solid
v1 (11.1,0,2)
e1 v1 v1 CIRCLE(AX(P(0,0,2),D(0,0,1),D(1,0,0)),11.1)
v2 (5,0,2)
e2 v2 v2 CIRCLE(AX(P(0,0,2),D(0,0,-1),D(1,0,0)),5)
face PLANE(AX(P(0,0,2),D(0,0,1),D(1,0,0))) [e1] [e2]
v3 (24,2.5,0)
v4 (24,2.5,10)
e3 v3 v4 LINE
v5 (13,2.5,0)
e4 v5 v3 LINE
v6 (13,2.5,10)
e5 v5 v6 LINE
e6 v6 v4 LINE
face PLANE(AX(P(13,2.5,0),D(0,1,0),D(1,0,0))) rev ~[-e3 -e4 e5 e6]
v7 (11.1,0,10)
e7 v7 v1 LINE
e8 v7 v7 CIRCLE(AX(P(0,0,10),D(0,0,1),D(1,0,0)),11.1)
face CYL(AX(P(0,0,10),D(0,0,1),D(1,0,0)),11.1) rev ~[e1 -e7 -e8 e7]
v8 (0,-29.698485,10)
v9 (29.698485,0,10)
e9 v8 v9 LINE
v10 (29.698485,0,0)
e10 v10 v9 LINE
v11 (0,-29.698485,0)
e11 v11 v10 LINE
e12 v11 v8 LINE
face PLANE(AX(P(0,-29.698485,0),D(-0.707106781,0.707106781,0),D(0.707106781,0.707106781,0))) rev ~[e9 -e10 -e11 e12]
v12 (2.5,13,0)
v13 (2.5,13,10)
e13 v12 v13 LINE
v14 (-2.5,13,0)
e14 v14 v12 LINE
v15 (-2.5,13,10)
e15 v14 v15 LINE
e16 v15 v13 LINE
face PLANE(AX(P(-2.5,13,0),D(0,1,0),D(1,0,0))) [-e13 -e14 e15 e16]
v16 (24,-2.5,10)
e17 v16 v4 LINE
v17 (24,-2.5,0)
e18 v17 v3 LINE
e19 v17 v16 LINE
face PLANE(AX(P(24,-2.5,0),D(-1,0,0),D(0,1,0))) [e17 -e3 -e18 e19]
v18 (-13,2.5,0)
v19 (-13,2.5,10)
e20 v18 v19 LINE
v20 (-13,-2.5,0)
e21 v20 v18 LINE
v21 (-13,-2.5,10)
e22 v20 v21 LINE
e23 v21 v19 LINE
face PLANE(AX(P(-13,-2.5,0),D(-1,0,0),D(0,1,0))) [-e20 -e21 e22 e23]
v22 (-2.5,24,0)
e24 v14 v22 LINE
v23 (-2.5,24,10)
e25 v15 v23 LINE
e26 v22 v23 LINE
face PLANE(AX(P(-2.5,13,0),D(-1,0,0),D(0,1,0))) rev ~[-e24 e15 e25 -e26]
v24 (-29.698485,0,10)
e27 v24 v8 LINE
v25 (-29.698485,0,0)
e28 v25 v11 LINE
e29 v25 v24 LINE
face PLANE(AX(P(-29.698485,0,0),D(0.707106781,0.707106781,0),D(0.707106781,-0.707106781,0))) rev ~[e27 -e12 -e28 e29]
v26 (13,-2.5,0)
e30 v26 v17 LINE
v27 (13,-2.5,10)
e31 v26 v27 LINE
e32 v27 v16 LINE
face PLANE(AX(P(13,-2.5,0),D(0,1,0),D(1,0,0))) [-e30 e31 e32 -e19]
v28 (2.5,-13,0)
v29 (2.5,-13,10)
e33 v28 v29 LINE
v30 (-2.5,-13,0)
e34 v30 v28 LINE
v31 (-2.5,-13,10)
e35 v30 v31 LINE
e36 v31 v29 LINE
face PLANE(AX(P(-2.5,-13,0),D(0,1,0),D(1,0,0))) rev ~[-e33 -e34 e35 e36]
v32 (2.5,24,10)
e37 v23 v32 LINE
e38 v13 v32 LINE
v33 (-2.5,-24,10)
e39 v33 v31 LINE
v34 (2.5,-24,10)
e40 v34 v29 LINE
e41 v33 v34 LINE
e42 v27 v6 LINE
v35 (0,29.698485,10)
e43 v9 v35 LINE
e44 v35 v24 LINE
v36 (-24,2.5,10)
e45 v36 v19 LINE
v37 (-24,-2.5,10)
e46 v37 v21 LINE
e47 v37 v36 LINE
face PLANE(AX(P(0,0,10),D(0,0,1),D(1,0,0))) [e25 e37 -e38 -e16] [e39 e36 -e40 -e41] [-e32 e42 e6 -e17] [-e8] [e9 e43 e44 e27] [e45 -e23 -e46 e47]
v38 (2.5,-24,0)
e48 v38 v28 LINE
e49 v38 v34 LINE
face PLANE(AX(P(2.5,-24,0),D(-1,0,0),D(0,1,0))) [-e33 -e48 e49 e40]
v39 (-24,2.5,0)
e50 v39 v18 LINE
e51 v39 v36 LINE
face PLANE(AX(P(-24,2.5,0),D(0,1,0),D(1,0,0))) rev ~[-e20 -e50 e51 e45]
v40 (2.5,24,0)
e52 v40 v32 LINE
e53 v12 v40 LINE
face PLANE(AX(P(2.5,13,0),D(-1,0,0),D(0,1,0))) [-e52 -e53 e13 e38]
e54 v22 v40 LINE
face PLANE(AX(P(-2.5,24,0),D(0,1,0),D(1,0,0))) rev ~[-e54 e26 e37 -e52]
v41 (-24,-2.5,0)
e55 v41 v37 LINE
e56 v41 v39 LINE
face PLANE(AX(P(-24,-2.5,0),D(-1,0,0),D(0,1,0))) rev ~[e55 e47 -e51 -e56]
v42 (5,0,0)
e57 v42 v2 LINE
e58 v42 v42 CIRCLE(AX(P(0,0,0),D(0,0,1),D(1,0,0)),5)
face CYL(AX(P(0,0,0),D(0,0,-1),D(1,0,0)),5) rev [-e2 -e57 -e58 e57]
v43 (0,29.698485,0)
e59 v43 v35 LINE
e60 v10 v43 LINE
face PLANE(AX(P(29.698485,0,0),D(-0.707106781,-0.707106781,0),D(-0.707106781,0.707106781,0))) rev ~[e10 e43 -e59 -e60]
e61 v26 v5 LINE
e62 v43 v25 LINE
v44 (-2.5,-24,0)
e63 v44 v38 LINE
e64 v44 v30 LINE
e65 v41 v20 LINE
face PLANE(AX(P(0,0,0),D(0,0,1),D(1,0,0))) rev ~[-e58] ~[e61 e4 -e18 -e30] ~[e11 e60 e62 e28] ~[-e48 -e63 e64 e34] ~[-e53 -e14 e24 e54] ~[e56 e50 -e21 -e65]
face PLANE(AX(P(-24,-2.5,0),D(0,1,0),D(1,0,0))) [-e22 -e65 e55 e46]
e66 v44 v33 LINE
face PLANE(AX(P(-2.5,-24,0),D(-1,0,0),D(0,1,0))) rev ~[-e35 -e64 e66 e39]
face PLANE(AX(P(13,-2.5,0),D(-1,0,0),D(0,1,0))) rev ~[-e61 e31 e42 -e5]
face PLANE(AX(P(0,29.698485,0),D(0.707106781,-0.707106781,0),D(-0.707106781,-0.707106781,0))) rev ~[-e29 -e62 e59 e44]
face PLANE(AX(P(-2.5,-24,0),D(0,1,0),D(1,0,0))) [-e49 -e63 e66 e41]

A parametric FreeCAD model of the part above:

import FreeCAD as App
import Part
import Sketcher

doc = App.newDocument("Part")
body = doc.addObject("PartDesign::Body", "Body")

# Sketch on XY plane
sketch1 = doc.addObject("Sketcher::SketchObject", "Sketch")
body.addObject(sketch1)
sketch1.AttachmentSupport = (doc.XY_Plane, [""])
sketch1.MapMode = "FlatFace"
sketch1.addGeometry(Part.LineSegment(App.Vector(29.698485, 0, 0), App.Vector(0, 29.698485, 0)), False)
sketch1.addGeometry(Part.LineSegment(App.Vector(0, 29.698485, 0), App.Vector(-29.698485, 0, 0)), False)
sketch1.addGeometry(Part.LineSegment(App.Vector(-29.698485, 0, 0), App.Vector(0, -29.698485, 0)), False)
sketch1.addGeometry(Part.LineSegment(App.Vector(0, -29.698485, 0), App.Vector(29.698485, 0, 0)), False)
sketch1.addGeometry(Part.LineSegment(App.Vector(2.5, -24, 0), App.Vector(-2.5, -24, 0)), False)
sketch1.addGeometry(Part.LineSegment(App.Vector(-2.5, -24, 0), App.Vector(-2.5, -13, 0)), False)
sketch1.addGeometry(Part.LineSegment(App.Vector(-2.5, -13, 0), App.Vector(2.5, -13, 0)), False)
sketch1.addGeometry(Part.LineSegment(App.Vector(2.5, -13, 0), App.Vector(2.5, -24, 0)), False)
sketch1.addGeometry(Part.LineSegment(App.Vector(-13, -2.5, 0), App.Vector(-24, -2.5, 0)), False)
sketch1.addGeometry(Part.LineSegment(App.Vector(-24, -2.5, 0), App.Vector(-24, 2.5, 0)), False)
sketch1.addGeometry(Part.LineSegment(App.Vector(-24, 2.5, 0), App.Vector(-13, 2.5, 0)), False)
sketch1.addGeometry(Part.LineSegment(App.Vector(-13, 2.5, 0), App.Vector(-13, -2.5, 0)), False)
sketch1.addGeometry(Part.Circle(App.Vector(0, 0, 0), App.Vector(0, 0, 1), 5), False)
sketch1.addGeometry(Part.LineSegment(App.Vector(24, -2.5, 0), App.Vector(13, -2.5, 0)), False)
sketch1.addGeometry(Part.LineSegment(App.Vector(13, -2.5, 0), App.Vector(13, 2.5, 0)), False)
sketch1.addGeometry(Part.LineSegment(App.Vector(13, 2.5, 0), App.Vector(24, 2.5, 0)), False)
sketch1.addGeometry(Part.LineSegment(App.Vector(24, 2.5, 0), App.Vector(24, -2.5, 0)), False)
sketch1.addGeometry(Part.LineSegment(App.Vector(2.5, 13, 0), App.Vector(-2.5, 13, 0)), False)
sketch1.addGeometry(Part.LineSegment(App.Vector(-2.5, 13, 0), App.Vector(-2.5, 24, 0)), False)
sketch1.addGeometry(Part.LineSegment(App.Vector(-2.5, 24, 0), App.Vector(2.5, 24, 0)), False)
sketch1.addGeometry(Part.LineSegment(App.Vector(2.5, 24, 0), App.Vector(2.5, 13, 0)), False)
sketch1.addConstraint(Sketcher.Constraint("Coincident", 0, 2, 1, 1))
sketch1.addConstraint(Sketcher.Constraint("Coincident", 1, 2, 2, 1))
sketch1.addConstraint(Sketcher.Constraint("Coincident", 2, 2, 3, 1))
sketch1.addConstraint(Sketcher.Constraint("Coincident", 3, 2, 0, 1))
sketch1.addConstraint(Sketcher.Constraint("Coincident", 4, 2, 5, 1))
sketch1.addConstraint(Sketcher.Constraint("Coincident", 5, 2, 6, 1))
sketch1.addConstraint(Sketcher.Constraint("Coincident", 6, 2, 7, 1))
sketch1.addConstraint(Sketcher.Constraint("Coincident", 7, 2, 4, 1))
sketch1.addConstraint(Sketcher.Constraint("Coincident", 8, 2, 9, 1))
sketch1.addConstraint(Sketcher.Constraint("Coincident", 9, 2, 10, 1))
sketch1.addConstraint(Sketcher.Constraint("Coincident", 10, 2, 11, 1))
sketch1.addConstraint(Sketcher.Constraint("Coincident", 11, 2, 8, 1))
sketch1.addConstraint(Sketcher.Constraint("Coincident", 13, 2, 14, 1))
sketch1.addConstraint(Sketcher.Constraint("Coincident", 14, 2, 15, 1))
sketch1.addConstraint(Sketcher.Constraint("Coincident", 15, 2, 16, 1))
sketch1.addConstraint(Sketcher.Constraint("Coincident", 16, 2, 13, 1))
sketch1.addConstraint(Sketcher.Constraint("Coincident", 17, 2, 18, 1))
sketch1.addConstraint(Sketcher.Constraint("Coincident", 18, 2, 19, 1))
sketch1.addConstraint(Sketcher.Constraint("Coincident", 19, 2, 20, 1))
sketch1.addConstraint(Sketcher.Constraint("Coincident", 20, 2, 17, 1))
sketch1.addConstraint(Sketcher.Constraint("Horizontal", 4))
sketch1.addConstraint(Sketcher.Constraint("Vertical", 5))
sketch1.addConstraint(Sketcher.Constraint("Horizontal", 6))
sketch1.addConstraint(Sketcher.Constraint("Vertical", 7))
sketch1.addConstraint(Sketcher.Constraint("Horizontal", 8))
sketch1.addConstraint(Sketcher.Constraint("Vertical", 9))
sketch1.addConstraint(Sketcher.Constraint("Horizontal", 10))
sketch1.addConstraint(Sketcher.Constraint("Vertical", 11))
sketch1.addConstraint(Sketcher.Constraint("Horizontal", 13))
sketch1.addConstraint(Sketcher.Constraint("Vertical", 14))
sketch1.addConstraint(Sketcher.Constraint("Horizontal", 15))
sketch1.addConstraint(Sketcher.Constraint("Vertical", 16))
sketch1.addConstraint(Sketcher.Constraint("Horizontal", 17))
sketch1.addConstraint(Sketcher.Constraint("Vertical", 18))
sketch1.addConstraint(Sketcher.Constraint("Horizontal", 19))
sketch1.addConstraint(Sketcher.Constraint("Vertical", 20))
sketch1.addConstraint(Sketcher.Constraint("Coincident", 12, 3, -1, 1))
sketch1.addConstraint(Sketcher.Constraint("Symmetric", 0, 2, 2, 2, -1, 1))
sketch1.addConstraint(Sketcher.Constraint("Symmetric", 1, 2, 3, 2, -1, 1))
sketch1.addConstraint(Sketcher.Constraint("Symmetric", 10, 2, 13, 2, -1, 1))
sketch1.addConstraint(Sketcher.Constraint("Symmetric", 8, 2, 15, 2, -1, 1))
sketch1.addConstraint(Sketcher.Constraint("Symmetric", 6, 2, 17, 2, -1, 1))
sketch1.addConstraint(Sketcher.Constraint("Symmetric", 4, 2, 19, 2, -1, 1))
sketch1.addConstraint(Sketcher.Constraint("PointOnObject", 0, 2, -2))
sketch1.addConstraint(Sketcher.Constraint("PointOnObject", 1, 2, -1))
sketch1.addConstraint(Sketcher.Constraint("Perpendicular", 0, 1))
sketch1.addConstraint(Sketcher.Constraint("Horizontal", 11, 2, 13, 2))
sketch1.addConstraint(Sketcher.Constraint("Vertical", 5, 2, 17, 2))
sketch1.addConstraint(Sketcher.Constraint("Equal", 15, 5))
sketch1.addConstraint(Sketcher.Constraint("Equal", 19, 9))
sketch1.addConstraint(Sketcher.Constraint("Diameter", 12, 10.0))
sketch1.addConstraint(Sketcher.Constraint("DistanceX", 4, 2, 4, 1, 5.0))
sketch1.addConstraint(Sketcher.Constraint("DistanceX", 8, 2, 8, 1, 11.0))
sketch1.addConstraint(Sketcher.Constraint("Distance", 0, 42.0))
sketch1.addConstraint(Sketcher.Constraint("DistanceY", 4, 2, -1, 1, 24.0))
sketch1.addConstraint(Sketcher.Constraint("DistanceX", 8, 2, -1, 1, 24.0))
pad1 = doc.addObject("PartDesign::Pad", "Pad")
body.addObject(pad1)
pad1.Profile = sketch1
pad1.Length = 10

# Sketch on XY plane
sketch2 = doc.addObject("Sketcher::SketchObject", "Sketch001")
body.addObject(sketch2)
sketch2.AttachmentSupport = (doc.XY_Plane, [""])
sketch2.MapMode = "FlatFace"
sketch2.AttachmentOffset = App.Placement(App.Vector(0, 0, 10), App.Rotation())
sketch2.addGeometry(Part.Circle(App.Vector(0, 0, 0), App.Vector(0, 0, 1), 11.1), False)
sketch2.addConstraint(Sketcher.Constraint("Coincident", 0, 3, -1, 1))
sketch2.addConstraint(Sketcher.Constraint("Diameter", 0, 22.2))
pocket1 = doc.addObject("PartDesign::Pocket", "Pocket")
body.addObject(pocket1)
pocket1.Profile = sketch2
pocket1.Length = 8

doc.recompute()
